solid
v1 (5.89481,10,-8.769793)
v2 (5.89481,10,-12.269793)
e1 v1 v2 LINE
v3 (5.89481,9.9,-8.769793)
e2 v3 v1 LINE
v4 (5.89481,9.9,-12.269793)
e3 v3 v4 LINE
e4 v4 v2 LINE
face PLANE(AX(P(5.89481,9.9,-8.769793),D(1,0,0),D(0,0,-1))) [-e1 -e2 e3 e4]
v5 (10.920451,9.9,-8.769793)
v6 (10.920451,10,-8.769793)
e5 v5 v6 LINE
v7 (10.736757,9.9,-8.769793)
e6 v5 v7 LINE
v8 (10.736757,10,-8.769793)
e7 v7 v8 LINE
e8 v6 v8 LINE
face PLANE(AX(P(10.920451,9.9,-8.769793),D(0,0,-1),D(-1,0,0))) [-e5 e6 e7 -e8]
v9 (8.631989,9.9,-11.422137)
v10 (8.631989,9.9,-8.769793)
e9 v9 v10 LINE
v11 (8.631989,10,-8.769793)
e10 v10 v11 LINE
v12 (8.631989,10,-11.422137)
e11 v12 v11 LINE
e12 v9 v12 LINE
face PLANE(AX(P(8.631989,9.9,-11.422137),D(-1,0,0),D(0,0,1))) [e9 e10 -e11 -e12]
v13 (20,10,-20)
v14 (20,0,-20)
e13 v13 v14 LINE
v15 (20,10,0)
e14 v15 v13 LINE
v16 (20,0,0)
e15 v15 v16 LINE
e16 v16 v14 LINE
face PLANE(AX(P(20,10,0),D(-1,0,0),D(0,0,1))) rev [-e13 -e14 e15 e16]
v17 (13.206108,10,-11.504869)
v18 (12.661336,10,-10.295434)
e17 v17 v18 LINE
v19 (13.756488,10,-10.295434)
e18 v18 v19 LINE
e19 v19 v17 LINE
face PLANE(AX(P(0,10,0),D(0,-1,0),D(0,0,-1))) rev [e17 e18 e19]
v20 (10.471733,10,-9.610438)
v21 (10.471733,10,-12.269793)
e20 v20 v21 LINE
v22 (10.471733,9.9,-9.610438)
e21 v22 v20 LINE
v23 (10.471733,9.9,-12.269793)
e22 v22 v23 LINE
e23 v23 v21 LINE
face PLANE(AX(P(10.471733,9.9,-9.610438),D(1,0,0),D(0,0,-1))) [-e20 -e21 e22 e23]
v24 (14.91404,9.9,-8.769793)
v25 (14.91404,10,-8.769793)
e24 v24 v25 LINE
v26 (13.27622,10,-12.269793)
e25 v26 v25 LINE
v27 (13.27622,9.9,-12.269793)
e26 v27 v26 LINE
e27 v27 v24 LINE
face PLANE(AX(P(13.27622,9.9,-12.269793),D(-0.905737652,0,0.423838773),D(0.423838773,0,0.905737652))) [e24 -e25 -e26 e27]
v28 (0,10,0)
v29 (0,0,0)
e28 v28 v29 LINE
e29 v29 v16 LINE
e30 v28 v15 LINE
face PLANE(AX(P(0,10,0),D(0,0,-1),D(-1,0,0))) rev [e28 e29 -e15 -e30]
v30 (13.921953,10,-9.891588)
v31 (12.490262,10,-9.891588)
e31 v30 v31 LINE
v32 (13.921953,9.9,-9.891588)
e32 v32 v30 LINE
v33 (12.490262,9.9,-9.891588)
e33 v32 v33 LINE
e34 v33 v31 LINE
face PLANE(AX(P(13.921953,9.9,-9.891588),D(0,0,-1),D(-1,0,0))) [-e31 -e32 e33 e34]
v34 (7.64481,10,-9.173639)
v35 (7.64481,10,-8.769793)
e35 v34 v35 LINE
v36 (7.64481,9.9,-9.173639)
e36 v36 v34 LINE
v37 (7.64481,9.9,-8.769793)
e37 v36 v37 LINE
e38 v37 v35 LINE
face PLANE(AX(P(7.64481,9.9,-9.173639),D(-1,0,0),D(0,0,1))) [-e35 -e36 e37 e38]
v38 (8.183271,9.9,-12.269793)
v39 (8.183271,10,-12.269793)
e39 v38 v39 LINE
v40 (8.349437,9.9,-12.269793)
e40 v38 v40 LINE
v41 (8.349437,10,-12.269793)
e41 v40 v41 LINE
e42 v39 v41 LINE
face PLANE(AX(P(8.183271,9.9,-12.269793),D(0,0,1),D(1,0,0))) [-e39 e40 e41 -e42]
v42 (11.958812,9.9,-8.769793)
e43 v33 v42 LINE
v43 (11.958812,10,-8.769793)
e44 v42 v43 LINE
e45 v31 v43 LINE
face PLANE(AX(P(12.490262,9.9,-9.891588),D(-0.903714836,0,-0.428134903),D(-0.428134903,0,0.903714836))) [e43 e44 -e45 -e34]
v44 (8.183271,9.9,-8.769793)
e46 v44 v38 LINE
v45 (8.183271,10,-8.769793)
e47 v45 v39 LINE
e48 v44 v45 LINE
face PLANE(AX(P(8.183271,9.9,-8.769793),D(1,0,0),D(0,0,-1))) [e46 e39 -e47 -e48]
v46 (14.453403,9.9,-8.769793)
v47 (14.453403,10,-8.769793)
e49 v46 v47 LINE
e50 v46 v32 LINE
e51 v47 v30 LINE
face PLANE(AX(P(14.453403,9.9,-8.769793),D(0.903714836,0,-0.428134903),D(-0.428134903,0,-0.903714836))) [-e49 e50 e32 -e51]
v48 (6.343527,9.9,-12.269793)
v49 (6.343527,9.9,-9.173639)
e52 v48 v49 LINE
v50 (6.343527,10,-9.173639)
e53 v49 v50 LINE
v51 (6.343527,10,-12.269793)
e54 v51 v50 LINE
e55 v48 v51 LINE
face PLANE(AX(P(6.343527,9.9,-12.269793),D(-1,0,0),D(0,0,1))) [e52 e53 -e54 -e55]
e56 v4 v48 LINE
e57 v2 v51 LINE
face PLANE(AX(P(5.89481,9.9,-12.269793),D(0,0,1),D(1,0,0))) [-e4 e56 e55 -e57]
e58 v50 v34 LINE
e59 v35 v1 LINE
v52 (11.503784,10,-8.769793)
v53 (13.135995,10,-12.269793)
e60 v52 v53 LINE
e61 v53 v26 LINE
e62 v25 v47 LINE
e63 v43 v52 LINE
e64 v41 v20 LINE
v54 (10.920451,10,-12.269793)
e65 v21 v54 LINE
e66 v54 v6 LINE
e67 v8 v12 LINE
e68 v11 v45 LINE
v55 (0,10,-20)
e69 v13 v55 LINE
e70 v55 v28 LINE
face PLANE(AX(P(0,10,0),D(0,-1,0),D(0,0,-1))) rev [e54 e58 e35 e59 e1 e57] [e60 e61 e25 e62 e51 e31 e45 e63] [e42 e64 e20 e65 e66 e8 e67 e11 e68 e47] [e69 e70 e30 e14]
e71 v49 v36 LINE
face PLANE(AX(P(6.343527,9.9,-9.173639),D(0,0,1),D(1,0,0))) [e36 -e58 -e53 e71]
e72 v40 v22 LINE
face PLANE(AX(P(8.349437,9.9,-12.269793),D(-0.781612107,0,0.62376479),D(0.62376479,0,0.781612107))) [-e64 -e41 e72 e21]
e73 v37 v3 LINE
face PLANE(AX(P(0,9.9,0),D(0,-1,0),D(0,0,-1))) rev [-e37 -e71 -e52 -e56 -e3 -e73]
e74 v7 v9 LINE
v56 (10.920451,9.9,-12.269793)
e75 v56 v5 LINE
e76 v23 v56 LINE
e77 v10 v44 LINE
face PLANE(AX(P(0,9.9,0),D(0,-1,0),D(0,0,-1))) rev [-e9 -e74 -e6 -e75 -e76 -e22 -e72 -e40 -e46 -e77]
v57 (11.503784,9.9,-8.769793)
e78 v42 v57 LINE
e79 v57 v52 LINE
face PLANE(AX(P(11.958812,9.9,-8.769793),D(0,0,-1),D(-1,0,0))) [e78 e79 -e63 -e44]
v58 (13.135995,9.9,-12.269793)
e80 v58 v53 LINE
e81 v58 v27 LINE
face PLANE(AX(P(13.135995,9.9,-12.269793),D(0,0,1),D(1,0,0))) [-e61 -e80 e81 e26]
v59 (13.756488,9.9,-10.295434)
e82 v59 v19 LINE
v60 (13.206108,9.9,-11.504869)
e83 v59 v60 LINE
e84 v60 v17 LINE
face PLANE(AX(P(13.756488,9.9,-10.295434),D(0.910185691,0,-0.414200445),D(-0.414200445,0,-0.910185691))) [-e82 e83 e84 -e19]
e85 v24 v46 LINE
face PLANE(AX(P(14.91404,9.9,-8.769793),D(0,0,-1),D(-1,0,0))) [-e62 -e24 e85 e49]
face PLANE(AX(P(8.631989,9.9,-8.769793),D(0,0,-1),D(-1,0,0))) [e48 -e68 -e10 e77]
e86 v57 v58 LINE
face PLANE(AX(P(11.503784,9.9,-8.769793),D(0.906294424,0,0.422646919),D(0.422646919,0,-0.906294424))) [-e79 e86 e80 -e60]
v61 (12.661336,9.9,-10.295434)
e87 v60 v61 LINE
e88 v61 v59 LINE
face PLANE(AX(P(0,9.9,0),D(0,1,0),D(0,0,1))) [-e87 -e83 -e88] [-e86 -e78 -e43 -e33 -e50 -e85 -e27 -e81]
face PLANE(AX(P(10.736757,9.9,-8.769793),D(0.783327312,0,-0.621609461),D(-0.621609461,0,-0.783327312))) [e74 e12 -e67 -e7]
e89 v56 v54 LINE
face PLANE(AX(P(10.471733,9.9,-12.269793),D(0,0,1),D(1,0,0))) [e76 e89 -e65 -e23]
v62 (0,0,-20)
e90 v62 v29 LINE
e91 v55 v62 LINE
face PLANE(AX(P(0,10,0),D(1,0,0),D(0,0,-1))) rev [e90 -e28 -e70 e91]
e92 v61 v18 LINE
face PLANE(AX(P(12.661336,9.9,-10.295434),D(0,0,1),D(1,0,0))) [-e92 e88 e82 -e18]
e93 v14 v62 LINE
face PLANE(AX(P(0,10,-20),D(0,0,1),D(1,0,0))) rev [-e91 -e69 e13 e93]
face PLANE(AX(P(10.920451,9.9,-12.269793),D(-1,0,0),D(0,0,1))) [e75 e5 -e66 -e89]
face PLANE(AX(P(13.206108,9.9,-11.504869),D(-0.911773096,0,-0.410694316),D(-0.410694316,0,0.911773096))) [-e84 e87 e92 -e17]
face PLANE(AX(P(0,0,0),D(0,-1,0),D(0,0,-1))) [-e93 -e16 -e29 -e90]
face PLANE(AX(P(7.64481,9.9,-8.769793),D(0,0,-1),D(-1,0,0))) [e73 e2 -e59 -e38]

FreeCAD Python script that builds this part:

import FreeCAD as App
import Part
import Sketcher
from FreeCAD import Vector
Q = App.Units.Quantity

doc = App.newDocument("Part")
body = doc.addObject("PartDesign::Body", "Body")

sketch1 = doc.addObject("Sketcher::SketchObject", "Sketch")
body.addObject(sketch1)
sketch1.AttachmentSupport = (doc.XZ_Plane, [""])
sketch1.MapMode = "FlatFace"
sketch1.addGeometry(Part.LineSegment(Vector(0, -20, 0), Vector(0, 0, 0)), False)
sketch1.addGeometry(Part.LineSegment(Vector(0, 0, 0), Vector(20, 0, 0)), False)
sketch1.addGeometry(Part.LineSegment(Vector(20, 0, 0), Vector(20, -20, 0)), False)
sketch1.addGeometry(Part.LineSegment(Vector(20, -20, 0), Vector(0, -20, 0)), False)
sketch1.addConstraint(Sketcher.Constraint("Coincident", 0, 2, 1, 1))
sketch1.addConstraint(Sketcher.Constraint("Coincident", 1, 2, 2, 1))
sketch1.addConstraint(Sketcher.Constraint("Coincident", 2, 2, 3, 1))
sketch1.addConstraint(Sketcher.Constraint("Coincident", 3, 2, 0, 1))
sketch1.addConstraint(Sketcher.Constraint("Vertical", 0))
sketch1.addConstraint(Sketcher.Constraint("Horizontal", 1))
sketch1.addConstraint(Sketcher.Constraint("Vertical", 2))
sketch1.addConstraint(Sketcher.Constraint("Horizontal", 3))
sketch1.addConstraint(Sketcher.Constraint("Coincident", 0, 2, -1, 1))
sketch1.addConstraint(Sketcher.Constraint("Equal", 3, 0))
sketch1.addConstraint(Sketcher.Constraint("DistanceX", 1, 1, 1, 2, Q("20 mm")))
pad1 = doc.addObject("PartDesign::Pad", "Pad")
body.addObject(pad1)
pad1.Profile = sketch1
pad1.Length = 10
pad1.Reversed = True

sketch2 = doc.addObject("Sketcher::SketchObject", "Sketch001")
body.addObject(sketch2)
sketch2.AttachmentSupport = (doc.XZ_Plane, [""])
sketch2.MapMode = "FlatFace"
sketch2.AttachmentOffset = App.Placement(Vector(0, 0, -10), App.Rotation())
sketch2.addGeometry(Part.LineSegment(Vector(6.343527, -12.269793, 0), Vector(5.89481, -12.269793, 0)), False)
sketch2.addGeometry(Part.LineSegment(Vector(5.89481, -12.269793, 0), Vector(5.89481, -8.769793, 0)), False)
sketch2.addGeometry(Part.LineSegment(Vector(5.89481, -8.769793, 0), Vector(7.64481, -8.769793, 0)), False)
sketch2.addGeometry(Part.LineSegment(Vector(7.64481, -8.769793, 0), Vector(7.64481, -9.173639, 0)), False)
sketch2.addGeometry(Part.LineSegment(Vector(7.64481, -9.173639, 0), Vector(6.343527, -9.173639, 0)), False)
sketch2.addGeometry(Part.LineSegment(Vector(6.343527, -9.173639, 0), Vector(6.343527, -12.269793, 0)), False)
sketch2.addGeometry(Part.LineSegment(Vector(8.183271, -12.269793, 0), Vector(8.183271, -8.769793, 0)), False)
sketch2.addGeometry(Part.LineSegment(Vector(8.183271, -8.769793, 0), Vector(8.631989, -8.769793, 0)), False)
sketch2.addGeometry(Part.LineSegment(Vector(8.631989, -8.769793, 0), Vector(8.631989, -11.422137, 0)), False)
sketch2.addGeometry(Part.LineSegment(Vector(8.631989, -11.422137, 0), Vector(10.736757, -8.769793, 0)), False)
sketch2.addGeometry(Part.LineSegment(Vector(10.736757, -8.769793, 0), Vector(10.920451, -8.769793, 0)), False)
sketch2.addGeometry(Part.LineSegment(Vector(10.920451, -8.769793, 0), Vector(10.920451, -12.269793, 0)), False)
sketch2.addGeometry(Part.LineSegment(Vector(10.920451, -12.269793, 0), Vector(10.471733, -12.269793, 0)), False)
sketch2.addGeometry(Part.LineSegment(Vector(10.471733, -12.269793, 0), Vector(10.471733, -9.610438, 0)), False)
sketch2.addGeometry(Part.LineSegment(Vector(10.471733, -9.610438, 0), Vector(8.349437, -12.269793, 0)), False)
sketch2.addGeometry(Part.LineSegment(Vector(8.349437, -12.269793, 0), Vector(8.183271, -12.269793, 0)), False)
sketch2.addGeometry(Part.LineSegment(Vector(14.91404, -8.769793, 0), Vector(13.27622, -12.269793, 0)), False)
sketch2.addGeometry(Part.LineSegment(Vector(13.27622, -12.269793, 0), Vector(13.135995, -12.269793, 0)), False)
sketch2.addGeometry(Part.LineSegment(Vector(13.135995, -12.269793, 0), Vector(11.503784, -8.769793, 0)), False)
sketch2.addGeometry(Part.LineSegment(Vector(11.503784, -8.769793, 0), Vector(11.958812, -8.769793, 0)), False)
sketch2.addGeometry(Part.LineSegment(Vector(11.958812, -8.769793, 0), Vector(12.490262, -9.891588, 0)), False)
sketch2.addGeometry(Part.LineSegment(Vector(12.490262, -9.891588, 0), Vector(13.921953, -9.891588, 0)), False)
sketch2.addGeometry(Part.LineSegment(Vector(13.921953, -9.891588, 0), Vector(14.453403, -8.769793, 0)), False)
sketch2.addGeometry(Part.LineSegment(Vector(14.453403, -8.769793, 0), Vector(14.91404, -8.769793, 0)), False)
sketch2.addGeometry(Part.LineSegment(Vector(13.206108, -11.504869, 0), Vector(13.756488, -10.295434, 0)), False)
sketch2.addGeometry(Part.LineSegment(Vector(13.756488, -10.295434, 0), Vector(12.661336, -10.295434, 0)), False)
sketch2.addGeometry(Part.LineSegment(Vector(12.661336, -10.295434, 0), Vector(13.206108, -11.504869, 0)), False)
sketch2.addConstraint(Sketcher.Constraint("Coincident", 0, 2, 1, 1))
sketch2.addConstraint(Sketcher.Constraint("Coincident", 1, 2, 2, 1))
sketch2.addConstraint(Sketcher.Constraint("Coincident", 2, 2, 3, 1))
sketch2.addConstraint(Sketcher.Constraint("Coincident", 3, 2, 4, 1))
sketch2.addConstraint(Sketcher.Constraint("Coincident", 4, 2, 5, 1))
sketch2.addConstraint(Sketcher.Constraint("Coincident", 5, 2, 0, 1))
sketch2.addConstraint(Sketcher.Constraint("Coincident", 6, 2, 7, 1))
sketch2.addConstraint(Sketcher.Constraint("Coincident", 7, 2, 8, 1))
sketch2.addConstraint(Sketcher.Constraint("Coincident", 8, 2, 9, 1))
sketch2.addConstraint(Sketcher.Constraint("Coincident", 9, 2, 10, 1))
sketch2.addConstraint(Sketcher.Constraint("Coincident", 10, 2, 11, 1))
sketch2.addConstraint(Sketcher.Constraint("Coincident", 11, 2, 12, 1))
sketch2.addConstraint(Sketcher.Constraint("Coincident", 12, 2, 13, 1))
sketch2.addConstraint(Sketcher.Constraint("Coincident", 13, 2, 14, 1))
sketch2.addConstraint(Sketcher.Constraint("Coincident", 14, 2, 15, 1))
sketch2.addConstraint(Sketcher.Constraint("Coincident", 15, 2, 6, 1))
sketch2.addConstraint(Sketcher.Constraint("Coincident", 16, 2, 17, 1))
sketch2.addConstraint(Sketcher.Constraint("Coincident", 17, 2, 18, 1))
sketch2.addConstraint(Sketcher.Constraint("Coincident", 18, 2, 19, 1))
sketch2.addConstraint(Sketcher.Constraint("Coincident", 19, 2, 20, 1))
sketch2.addConstraint(Sketcher.Constraint("Coincident", 20, 2, 21, 1))
sketch2.addConstraint(Sketcher.Constraint("Coincident", 21, 2, 22, 1))
sketch2.addConstraint(Sketcher.Constraint("Coincident", 22, 2, 23, 1))
sketch2.addConstraint(Sketcher.Constraint("Coincident", 23, 2, 16, 1))
sketch2.addConstraint(Sketcher.Constraint("Coincident", 24, 2, 25, 1))
sketch2.addConstraint(Sketcher.Constraint("Coincident", 25, 2, 26, 1))
sketch2.addConstraint(Sketcher.Constraint("Coincident", 26, 2, 24, 1))
sketch2.addConstraint(Sketcher.Constraint("Horizontal", 0))
sketch2.addConstraint(Sketcher.Constraint("Vertical", 1))
sketch2.addConstraint(Sketcher.Constraint("Horizontal", 2))
sketch2.addConstraint(Sketcher.Constraint("Vertical", 3))
sketch2.addConstraint(Sketcher.Constraint("Horizontal", 4))
sketch2.addConstraint(Sketcher.Constraint("Vertical", 5))
sketch2.addConstraint(Sketcher.Constraint("Vertical", 6))
sketch2.addConstraint(Sketcher.Constraint("Horizontal", 7))
sketch2.addConstraint(Sketcher.Constraint("Vertical", 8))
sketch2.addConstraint(Sketcher.Constraint("Horizontal", 10))
sketch2.addConstraint(Sketcher.Constraint("Vertical", 11))
sketch2.addConstraint(Sketcher.Constraint("Horizontal", 12))
sketch2.addConstraint(Sketcher.Constraint("Vertical", 13))
sketch2.addConstraint(Sketcher.Constraint("Horizontal", 15))
sketch2.addConstraint(Sketcher.Constraint("Horizontal", 17))
sketch2.addConstraint(Sketcher.Constraint("Horizontal", 19))
sketch2.addConstraint(Sketcher.Constraint("Horizontal", 21))
sketch2.addConstraint(Sketcher.Constraint("Horizontal", 23))
sketch2.addConstraint(Sketcher.Constraint("Horizontal", 25))
sketch2.addConstraint(Sketcher.Constraint("Horizontal", 2, 2, 6, 2))
sketch2.addConstraint(Sketcher.Constraint("Horizontal", 7, 2, 9, 2))
sketch2.addConstraint(Sketcher.Constraint("Horizontal", 5, 2, 11, 2))
sketch2.addConstraint(Sketcher.Constraint("Horizontal", 12, 2, 14, 2))
sketch2.addConstraint(Sketcher.Constraint("Horizontal", 15, 2, 16, 2))
sketch2.addConstraint(Sketcher.Constraint("Horizontal", 10, 2, 18, 2))
sketch2.addConstraint(Sketcher.Constraint("Horizontal", 19, 2, 22, 2))
sketch2.addConstraint(Sketcher.Constraint("Equal", 0, 7))
sketch2.addConstraint(Sketcher.Constraint("Equal", 7, 12))
sketch2.addConstraint(Sketcher.Constraint("Equal", 20, 22))
sketch2.addConstraint(Sketcher.Constraint("DistanceY", 1, 1, 1, 2, Q("3.5 mm")))
sketch2.addConstraint(Sketcher.Constraint("DistanceX", 2, 1, 2, 2, Q("1.75 mm")))
sketch2.addConstraint(Sketcher.Constraint("DistanceX", 19, 1, 19, 2, Q("0.455028 mm")))
sketch2.addConstraint(Sketcher.Constraint("DistanceX", 21, 1, 21, 2, Q("1.431691 mm")))
sketch2.addConstraint(Sketcher.Constraint("DistanceY", 8, 2, 13, 2, Q("1.811699 mm")))
sketch2.addConstraint(Sketcher.Constraint("Distance", 18, Q("3.86188 mm")))
sketch2.addConstraint(Sketcher.Constraint("Distance", 24, Q("1.328778 mm")))
sketch2.addConstraint(Sketcher.Constraint("DistanceX", 0, 2, 0, 1, Q("0.448718 mm")))
sketch2.addConstraint(Sketcher.Constraint("DistanceX", 10, 1, 10, 2, Q("0.183694 mm")))
sketch2.addConstraint(Sketcher.Constraint("DistanceX", 15, 2, 15, 1, Q("0.166166 mm")))
sketch2.addConstraint(Sketcher.Constraint("DistanceX", 17, 2, 17, 1, Q("0.140224 mm")))
sketch2.addConstraint(Sketcher.Constraint("DistanceX", 23, 1, 23, 2, Q("0.460637 mm")))
sketch2.addConstraint(Sketcher.Constraint("DistanceX", 25, 2, 25, 1, Q("1.095152 mm")))
sketch2.addConstraint(Sketcher.Constraint("DistanceY", 3, 2, 3, 1, Q("0.403846 mm")))
sketch2.addConstraint(Sketcher.Constraint("DistanceY", 8, 2, 8, 1, Q("2.652344 mm")))
sketch2.addConstraint(Sketcher.Constraint("DistanceX", -1, 1, 0, 2, Q("5.89481 mm")))
sketch2.addConstraint(Sketcher.Constraint("DistanceY", 3, 2, -1, 1, Q("9.173639 mm")))
sketch2.addConstraint(Sketcher.Constraint("DistanceX", -1, 1, 6, 2, Q("8.183271 mm")))
sketch2.addConstraint(Sketcher.Constraint("DistanceX", -1, 1, 10, 2, Q("10.920451 mm")))
sketch2.addConstraint(Sketcher.Constraint("DistanceX", -1, 1, 16, 2, Q("13.27622 mm")))
sketch2.addConstraint(Sketcher.Constraint("DistanceX", -1, 1, 23, 2, Q("14.91404 mm")))
sketch2.addConstraint(Sketcher.Constraint("DistanceX", -1, 1, 24, 2, Q("13.756488 mm")))
sketch2.addConstraint(Sketcher.Constraint("DistanceY", 26, 2, -1, 1, Q("11.504869 mm")))
sketch2.addConstraint(Sketcher.Constraint("DistanceY", 20, 2, 13, 2, Q("0.28115 mm")))
sketch2.addConstraint(Sketcher.Constraint("DistanceY", 24, 2, 22, 2, Q("1.525641 mm")))
pocket1 = doc.addObject("PartDesign::Pocket", "Pocket")
body.addObject(pocket1)
pocket1.Profile = sketch2
pocket1.Length = 0.1
pocket1.Reversed = True

doc.recompute()
